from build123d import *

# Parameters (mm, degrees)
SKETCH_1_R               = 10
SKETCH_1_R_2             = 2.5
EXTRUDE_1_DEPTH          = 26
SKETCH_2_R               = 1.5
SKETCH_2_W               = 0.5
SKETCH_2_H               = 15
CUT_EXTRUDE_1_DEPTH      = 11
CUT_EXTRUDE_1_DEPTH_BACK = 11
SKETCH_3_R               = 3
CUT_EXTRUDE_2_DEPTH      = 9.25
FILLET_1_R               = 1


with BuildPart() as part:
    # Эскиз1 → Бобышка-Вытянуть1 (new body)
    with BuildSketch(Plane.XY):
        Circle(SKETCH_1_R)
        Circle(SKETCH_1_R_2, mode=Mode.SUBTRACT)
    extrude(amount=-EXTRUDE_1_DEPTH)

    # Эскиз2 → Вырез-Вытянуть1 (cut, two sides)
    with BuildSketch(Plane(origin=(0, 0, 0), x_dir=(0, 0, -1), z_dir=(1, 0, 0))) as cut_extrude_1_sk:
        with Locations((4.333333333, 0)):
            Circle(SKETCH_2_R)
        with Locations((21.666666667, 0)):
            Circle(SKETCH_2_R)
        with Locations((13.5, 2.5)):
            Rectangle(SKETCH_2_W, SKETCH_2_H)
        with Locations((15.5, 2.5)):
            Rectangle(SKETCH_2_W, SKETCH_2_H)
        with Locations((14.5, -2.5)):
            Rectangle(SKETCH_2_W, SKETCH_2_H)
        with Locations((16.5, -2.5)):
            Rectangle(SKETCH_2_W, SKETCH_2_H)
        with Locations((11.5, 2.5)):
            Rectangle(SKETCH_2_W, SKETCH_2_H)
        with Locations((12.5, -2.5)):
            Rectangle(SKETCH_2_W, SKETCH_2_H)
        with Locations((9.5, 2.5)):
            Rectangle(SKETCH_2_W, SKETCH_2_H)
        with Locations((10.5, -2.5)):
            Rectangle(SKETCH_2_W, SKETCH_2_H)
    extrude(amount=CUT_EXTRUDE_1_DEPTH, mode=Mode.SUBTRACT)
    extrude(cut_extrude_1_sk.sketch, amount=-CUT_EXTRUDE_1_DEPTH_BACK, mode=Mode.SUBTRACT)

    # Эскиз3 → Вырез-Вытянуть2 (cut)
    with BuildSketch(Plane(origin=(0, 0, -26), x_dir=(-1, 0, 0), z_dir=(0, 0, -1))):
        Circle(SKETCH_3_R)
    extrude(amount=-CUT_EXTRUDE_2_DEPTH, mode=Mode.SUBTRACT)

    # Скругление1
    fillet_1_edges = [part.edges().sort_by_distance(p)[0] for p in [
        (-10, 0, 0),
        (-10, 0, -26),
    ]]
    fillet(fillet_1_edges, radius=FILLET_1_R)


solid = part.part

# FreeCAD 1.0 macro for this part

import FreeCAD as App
import Part
import Sketcher
from FreeCAD import Vector
Q = App.Units.Quantity


def edges_at(feature, points):
    """Names of the edges that pass closest to the given points."""
    edges = feature.Shape.Edges
    near = lambda p: min(range(len(edges)), key=lambda i: edges[i].distToShape(Part.Vertex(*p))[0])
    return sorted({f"Edge{near(p) + 1}" for p in points})


def add_polygon(sketch, points):
    """Adds a closed chain of lines whose ends are joined by coincident constraints."""
    first, n = sketch.GeometryCount, len(points)
    for a, b in zip(points, points[1:] + points[:1]):
        sketch.addGeometry(Part.LineSegment(App.Vector(*a, 0), App.Vector(*b, 0)), False)
    for i in range(n):
        sketch.addConstraint(Sketcher.Constraint("Coincident", first + i, 2, first + (i + 1) % n, 1))

doc = App.newDocument("Part")
params = doc.addObject("Spreadsheet::Sheet", "Params")
for row, (alias, value) in enumerate([
    ("sketch1_diameter", "20 mm"),
    ("sketch1_diameter2", "5 mm"),
    ("pad1_length", "26 mm"),
    ("sketch2_diameter", "3 mm"),
    ("sketch2_width", "15 mm"),
    ("sketch2_height", "0.5 mm"),
    ("sketch3_diameter", "6 mm"),
    ("pocket2_length", "9.25 mm"),
    ("fillet_radius", "1 mm"),
], start=1):
    params.set(f"A{row}", alias)
    params.set(f"B{row}", "=" + value)
    params.setAlias(f"B{row}", alias)

body = doc.addObject("PartDesign::Body", "Body")

# Sketch on XY plane
sketch1 = body.newObject("Sketcher::SketchObject", "Sketch")
sketch1.AttachmentSupport = (doc.getObject("XY_Plane"), [""])
sketch1.MapMode = "FlatFace"
sketch1.addGeometry([
    Part.Circle(Vector(0, 0, 0), Vector(0, 0, 1), 10),
    Part.Circle(Vector(0, 0, 0), Vector(0, 0, 1), 2.5),
], False)
sketch1.addConstraint([
    Sketcher.Constraint("Coincident", 0, 3, -1, 1),
    Sketcher.Constraint("Coincident", 1, 3, -1, 1),
    Sketcher.Constraint("Diameter", 0, Q("20 mm")),
    Sketcher.Constraint("Diameter", 1, Q("5 mm")),
])
sketch1.setExpression("Constraints[2]", "Params.sketch1_diameter")
sketch1.setExpression("Constraints[3]", "Params.sketch1_diameter2")
pad1 = body.newObject("PartDesign::Pad", "Pad")
pad1.Profile = sketch1
pad1.setExpression("Length", "Params.pad1_length")
pad1.Reversed = True

# Sketch on YZ plane
sketch2 = body.newObject("Sketcher::SketchObject", "Sketch001")
sketch2.AttachmentSupport = (doc.getObject("YZ_Plane"), [""])
sketch2.MapMode = "FlatFace"
sketch2.addGeometry(Part.Circle(Vector(0, -4.3, 0), Vector(0, 0, 1), 1.5), False)  # 0
sketch2.addGeometry(Part.Circle(Vector(0, -21.7, 0), Vector(0, 0, 1), 1.5), False)  # 1
add_polygon(sketch2, [(10, -13.2), (-5, -13.2), (-5, -13.8), (10, -13.8)])  # lines 2-5
add_polygon(sketch2, [(10, -15.2), (-5, -15.2), (-5, -15.8), (10, -15.8)])  # lines 6-9
add_polygon(sketch2, [(5, -14.2), (-10, -14.2), (-10, -14.8), (5, -14.8)])  # lines 10-13
add_polygon(sketch2, [(5, -16.2), (-10, -16.2), (-10, -16.8), (5, -16.8)])  # lines 14-17
add_polygon(sketch2, [(10, -11.2), (-5, -11.2), (-5, -11.8), (10, -11.8)])  # lines 18-21
add_polygon(sketch2, [(5, -12.2), (-10, -12.2), (-10, -12.8), (5, -12.8)])  # lines 22-25
add_polygon(sketch2, [(10, -9.2), (-5, -9.2), (-5, -9.8), (10, -9.8)])  # lines 26-29
add_polygon(sketch2, [(5, -10.2), (-10, -10.2), (-10, -10.8), (5, -10.8)])  # lines 30-33
sketch2.addConstraint([
    Sketcher.Constraint("Horizontal", 2),
    Sketcher.Constraint("Vertical", 3),
    Sketcher.Constraint("Horizontal", 4),
    Sketcher.Constraint("Vertical", 5),
    Sketcher.Constraint("Horizontal", 6),
    Sketcher.Constraint("Vertical", 7),
    Sketcher.Constraint("Horizontal", 8),
    Sketcher.Constraint("Vertical", 9),
    Sketcher.Constraint("Horizontal", 10),
    Sketcher.Constraint("Vertical", 11),
    Sketcher.Constraint("Horizontal", 12),
    Sketcher.Constraint("Vertical", 13),
    Sketcher.Constraint("Horizontal", 14),
    Sketcher.Constraint("Vertical", 15),
    Sketcher.Constraint("Horizontal", 16),
    Sketcher.Constraint("Vertical", 17),
    Sketcher.Constraint("Horizontal", 18),
    Sketcher.Constraint("Vertical", 19),
    Sketcher.Constraint("Horizontal", 20),
    Sketcher.Constraint("Vertical", 21),
    Sketcher.Constraint("Horizontal", 22),
    Sketcher.Constraint("Vertical", 23),
    Sketcher.Constraint("Horizontal", 24),
    Sketcher.Constraint("Vertical", 25),
    Sketcher.Constraint("Horizontal", 26),
    Sketcher.Constraint("Vertical", 27),
    Sketcher.Constraint("Horizontal", 28),
    Sketcher.Constraint("Vertical", 29),
    Sketcher.Constraint("Horizontal", 30),
    Sketcher.Constraint("Vertical", 31),
    Sketcher.Constraint("Horizontal", 32),
    Sketcher.Constraint("Vertical", 33),
    Sketcher.Constraint("Equal", 0, 1),
    Sketcher.Constraint("PointOnObject", 0, 3, -2),
    Sketcher.Constraint("PointOnObject", 1, 3, -2),
    Sketcher.Constraint("Vertical", 3, 2, 6, 2),
    Sketcher.Constraint("Vertical", 5, 2, 8, 2),
    Sketcher.Constraint("Vertical", 11, 2, 14, 2),
    Sketcher.Constraint("Vertical", 13, 2, 16, 2),
    Sketcher.Constraint("Vertical", 7, 2, 18, 2),
    Sketcher.Constraint("Vertical", 9, 2, 20, 2),
    Sketcher.Constraint("Vertical", 15, 2, 22, 2),
    Sketcher.Constraint("Vertical", 17, 2, 24, 2),
    Sketcher.Constraint("Vertical", 19, 2, 26, 2),
    Sketcher.Constraint("Vertical", 21, 2, 28, 2),
    Sketcher.Constraint("Vertical", 23, 2, 30, 2),
    Sketcher.Constraint("Vertical", 25, 2, 32, 2),
    Sketcher.Constraint("Equal", 8, 10),
    Sketcher.Constraint("Equal", 5, 7),
    Sketcher.Constraint("Equal", 9, 11),
    Sketcher.Constraint("Equal", 13, 15),
    Sketcher.Constraint("Equal", 17, 19),
    Sketcher.Constraint("Equal", 21, 23),
    Sketcher.Constraint("Equal", 25, 27),
    Sketcher.Constraint("Equal", 29, 31),
    Sketcher.Constraint("Diameter", 0, Q("3 mm")),
    Sketcher.Constraint("DistanceX", 2, 2, 2, 1, Q("15 mm")),
    Sketcher.Constraint("DistanceY", 3, 2, 3, 1, Q("0.5 mm")),
    Sketcher.Constraint("DistanceX", 2, 2, -1, 1, Q("5 mm")),
    Sketcher.Constraint("DistanceX", 10, 2, -1, 1, Q("10 mm")),
    Sketcher.Constraint("DistanceY", 6, 2, 2, 2, Q("2 mm")),
    Sketcher.Constraint("DistanceY", 10, 2, 2, 2, Q("1 mm")),
    Sketcher.Constraint("DistanceY", 14, 2, 10, 2, Q("2 mm")),
    Sketcher.Constraint("DistanceY", 2, 2, 18, 2, Q("2 mm")),
    Sketcher.Constraint("DistanceY", 10, 2, 22, 2, Q("2 mm")),
    Sketcher.Constraint("DistanceY", 18, 2, 26, 2, Q("2 mm")),
    Sketcher.Constraint("DistanceY", 22, 2, 30, 2, Q("2 mm")),
    Sketcher.Constraint("DistanceY", 2, 2, -1, 1, Q("13.25 mm")),
    Sketcher.Constraint("DistanceY", 0, 3, -1, 1, Q("4.333333 mm")),
    Sketcher.Constraint("DistanceY", 1, 3, -1, 1, Q("21.666667 mm")),
])
sketch2.setExpression("Constraints[87]", "Params.sketch2_diameter")
sketch2.setExpression("Constraints[88]", "Params.sketch2_width")
sketch2.setExpression("Constraints[89]", "Params.sketch2_height")
pocket1 = body.newObject("PartDesign::Pocket", "Pocket")
pocket1.Profile = sketch2
pocket1.Type = "ThroughAll"
pocket1.Midplane = True

# Sketch on XY plane
sketch3 = body.newObject("Sketcher::SketchObject", "Sketch002")
sketch3.AttachmentSupport = (doc.getObject("XY_Plane"), [""])
sketch3.MapMode = "FlatFace"
sketch3.AttachmentOffset = App.Placement(Vector(0, 0, -26), App.Rotation())
sketch3.addGeometry(Part.Circle(Vector(0, 0, 0), Vector(0, 0, 1), 3), False)
sketch3.addConstraint([
    Sketcher.Constraint("Coincident", 0, 3, -1, 1),
    Sketcher.Constraint("Diameter", 0, Q("6 mm")),
])
sketch3.setExpression("Constraints[1]", "Params.sketch3_diameter")
pocket2 = body.newObject("PartDesign::Pocket", "Pocket001")
pocket2.Profile = sketch3
pocket2.setExpression("Length", "Params.pocket2_length")
pocket2.Reversed = True
doc.recompute()

fillet = body.newObject("PartDesign::Fillet", "Fillet")
fillet.Base = (pocket2, edges_at(pocket2, [(-10, 0, 0), (-10, 0, -26)]))
fillet.setExpression("Radius", "Params.fillet_radius")

doc.recompute()
